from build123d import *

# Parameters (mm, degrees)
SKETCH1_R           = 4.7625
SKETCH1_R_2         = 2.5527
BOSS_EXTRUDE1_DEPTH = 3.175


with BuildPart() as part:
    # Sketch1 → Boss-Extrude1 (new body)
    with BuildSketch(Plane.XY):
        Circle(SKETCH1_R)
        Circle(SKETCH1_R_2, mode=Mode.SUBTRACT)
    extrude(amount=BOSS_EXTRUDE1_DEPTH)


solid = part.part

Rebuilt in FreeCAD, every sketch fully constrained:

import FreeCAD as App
import Part
import Sketcher
from FreeCAD import Vector
Q = App.Units.Quantity

doc = App.newDocument("Part")
params = doc.addObject("Spreadsheet::Sheet", "Params")
for row, (alias, value) in enumerate([
    ("sketch1_diameter", "0.375 in"),
    ("sketch1_diameter2", "0.201 in"),
    ("pad1_length", "0.125 in"),
], start=1):
    params.set(f"A{row}", alias)
    params.set(f"B{row}", "=" + value)
    params.setAlias(f"B{row}", alias)

body = doc.addObject("PartDesign::Body", "Body")

# Sketch on XY plane
sketch1 = body.newObject("Sketcher::SketchObject", "Sketch")
sketch1.AttachmentSupport = (doc.getObject("XY_Plane"), [""])
sketch1.MapMode = "FlatFace"
sketch1.addGeometry(Part.Circle(Vector(0, 0, 0), Vector(0, 0, 1), 4.8), False)
sketch1.addGeometry(Part.Circle(Vector(0, 0, 0), Vector(0, 0, 1), 2.6), False)
sketch1.addConstraint(Sketcher.Constraint("Coincident", 0, 3, -1, 1))
sketch1.addConstraint(Sketcher.Constraint("Coincident", 1, 3, -1, 1))
sketch1.addConstraint(Sketcher.Constraint("Diameter", 0, Q("0.375 in")))
sketch1.addConstraint(Sketcher.Constraint("Diameter", 1, Q("0.201 in")))
sketch1.setExpression("Constraints[2]", "Params.sketch1_diameter")
sketch1.setExpression("Constraints[3]", "Params.sketch1_diameter2")
pad1 = body.newObject("PartDesign::Pad", "Pad")
pad1.Profile = sketch1
pad1.setExpression("Length", "Params.pad1_length")

doc.recompute()
